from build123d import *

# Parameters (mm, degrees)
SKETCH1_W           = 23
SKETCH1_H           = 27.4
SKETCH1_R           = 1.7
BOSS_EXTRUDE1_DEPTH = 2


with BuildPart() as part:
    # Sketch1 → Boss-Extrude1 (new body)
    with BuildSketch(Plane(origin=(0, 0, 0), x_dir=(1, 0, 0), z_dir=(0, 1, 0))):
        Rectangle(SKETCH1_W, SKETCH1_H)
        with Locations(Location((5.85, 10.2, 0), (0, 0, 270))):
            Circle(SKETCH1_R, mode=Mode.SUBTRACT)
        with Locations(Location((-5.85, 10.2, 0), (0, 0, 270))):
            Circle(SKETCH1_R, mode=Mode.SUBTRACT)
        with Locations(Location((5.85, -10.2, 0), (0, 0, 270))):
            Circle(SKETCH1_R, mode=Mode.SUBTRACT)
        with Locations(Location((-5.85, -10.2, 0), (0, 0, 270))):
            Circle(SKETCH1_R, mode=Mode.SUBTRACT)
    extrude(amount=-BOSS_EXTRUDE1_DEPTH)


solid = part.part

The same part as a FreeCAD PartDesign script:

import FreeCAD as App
import Part
import Sketcher
from FreeCAD import Vector
Q = App.Units.Quantity

doc = App.newDocument("Part")
body = doc.addObject("PartDesign::Body", "Body")

# Sketch on XZ plane
sketch1 = body.newObject("Sketcher::SketchObject", "Sketch")
sketch1.AttachmentSupport = (doc.getObject("XZ_Plane"), [""])
sketch1.MapMode = "FlatFace"
sketch1.addGeometry([
    Part.LineSegment(Vector(-11.5, -13.7, 0), Vector(-11.5, 13.7, 0)),  # 0
    Part.LineSegment(Vector(-11.5, 13.7, 0), Vector(11.5, 13.7, 0)),  # 1
    Part.LineSegment(Vector(11.5, 13.7, 0), Vector(11.5, -13.7, 0)),  # 2
    Part.LineSegment(Vector(11.5, -13.7, 0), Vector(-11.5, -13.7, 0)),  # 3
    Part.Circle(Vector(-5.8, 10.2, 0), Vector(0, 0, 1), 1.7),  # 4
    Part.Circle(Vector(5.8, 10.2, 0), Vector(0, 0, 1), 1.7),  # 5
    Part.Circle(Vector(-5.8, -10.2, 0), Vector(0, 0, 1), 1.7),  # 6
    Part.Circle(Vector(5.8, -10.2, 0), Vector(0, 0, 1), 1.7),  # 7
], False)
sketch1.addConstraint([
    Sketcher.Constraint("Coincident", 0, 2, 1, 1),
    Sketcher.Constraint("Coincident", 1, 2, 2, 1),
    Sketcher.Constraint("Coincident", 2, 2, 3, 1),
    Sketcher.Constraint("Coincident", 3, 2, 0, 1),
    Sketcher.Constraint("Vertical", 0),
    Sketcher.Constraint("Horizontal", 1),
    Sketcher.Constraint("Vertical", 2),
    Sketcher.Constraint("Horizontal", 3),
    Sketcher.Constraint("Equal", 4, 5),
    Sketcher.Constraint("Equal", 5, 6),
    Sketcher.Constraint("Equal", 6, 7),
    Sketcher.Constraint("Symmetric", 5, 3, 6, 3, -1, 1),
    Sketcher.Constraint("Symmetric", 4, 3, 7, 3, -1, 1),
    Sketcher.Constraint("Symmetric", 0, 2, 2, 2, -1, 1),
    Sketcher.Constraint("Symmetric", 4, 3, 5, 3, -2),
    Sketcher.Constraint("Diameter", 4, Q("3.4 mm")),
    Sketcher.Constraint("DistanceX", 1, 1, 1, 2, Q("23 mm")),
    Sketcher.Constraint("DistanceY", 0, 1, 0, 2, Q("27.4 mm")),
    Sketcher.Constraint("DistanceY", -1, 1, 4, 3, Q("10.2 mm")),
    Sketcher.Constraint("DistanceX", 4, 3, 5, 3, Q("11.7 mm")),
])
pad1 = body.newObject("PartDesign::Pad", "Pad")
pad1.Profile = sketch1
pad1.Length = 2

doc.recompute()
